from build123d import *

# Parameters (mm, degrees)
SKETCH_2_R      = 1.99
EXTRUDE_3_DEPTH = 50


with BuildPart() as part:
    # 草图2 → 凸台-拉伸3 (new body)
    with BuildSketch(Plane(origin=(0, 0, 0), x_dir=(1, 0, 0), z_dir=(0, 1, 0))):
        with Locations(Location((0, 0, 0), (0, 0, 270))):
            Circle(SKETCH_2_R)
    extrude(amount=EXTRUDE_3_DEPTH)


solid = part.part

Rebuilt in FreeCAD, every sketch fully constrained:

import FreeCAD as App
import Part
import Sketcher

V = App.Vector
Q = App.Units.Quantity

doc = App.newDocument("Part")
params = doc.addObject("Spreadsheet::Sheet", "Params")
for row, (alias, value) in enumerate([
    ("sketch1_diameter", "3.98 mm"),
    ("pad1_length", "50 mm"),
], start=1):
    params.set(f"A{row}", alias)
    params.set(f"B{row}", "=" + value)
    params.setAlias(f"B{row}", alias)

body = doc.addObject("PartDesign::Body", "Body")

sketch1 = body.newObject("Sketcher::SketchObject", "Sketch")
sketch1.AttachmentSupport = (doc.getObject("XZ_Plane"), [""])
sketch1.MapMode = "FlatFace"
sketch1.addGeometry(Part.Circle(V(0, 0, 0), V(0, 0, 1), 1.99), False)
sketch1.addConstraint([
    Sketcher.Constraint("Coincident", 0, 3, -1, 1),
    Sketcher.Constraint("Diameter", 0, Q("3.98 mm")),
])
sketch1.setExpression("Constraints[1]", "Params.sketch1_diameter")
pad1 = body.newObject("PartDesign::Pad", "Pad")
pad1.Profile = sketch1
pad1.setExpression("Length", "Params.pad1_length")
pad1.Reversed = True

doc.recompute()
